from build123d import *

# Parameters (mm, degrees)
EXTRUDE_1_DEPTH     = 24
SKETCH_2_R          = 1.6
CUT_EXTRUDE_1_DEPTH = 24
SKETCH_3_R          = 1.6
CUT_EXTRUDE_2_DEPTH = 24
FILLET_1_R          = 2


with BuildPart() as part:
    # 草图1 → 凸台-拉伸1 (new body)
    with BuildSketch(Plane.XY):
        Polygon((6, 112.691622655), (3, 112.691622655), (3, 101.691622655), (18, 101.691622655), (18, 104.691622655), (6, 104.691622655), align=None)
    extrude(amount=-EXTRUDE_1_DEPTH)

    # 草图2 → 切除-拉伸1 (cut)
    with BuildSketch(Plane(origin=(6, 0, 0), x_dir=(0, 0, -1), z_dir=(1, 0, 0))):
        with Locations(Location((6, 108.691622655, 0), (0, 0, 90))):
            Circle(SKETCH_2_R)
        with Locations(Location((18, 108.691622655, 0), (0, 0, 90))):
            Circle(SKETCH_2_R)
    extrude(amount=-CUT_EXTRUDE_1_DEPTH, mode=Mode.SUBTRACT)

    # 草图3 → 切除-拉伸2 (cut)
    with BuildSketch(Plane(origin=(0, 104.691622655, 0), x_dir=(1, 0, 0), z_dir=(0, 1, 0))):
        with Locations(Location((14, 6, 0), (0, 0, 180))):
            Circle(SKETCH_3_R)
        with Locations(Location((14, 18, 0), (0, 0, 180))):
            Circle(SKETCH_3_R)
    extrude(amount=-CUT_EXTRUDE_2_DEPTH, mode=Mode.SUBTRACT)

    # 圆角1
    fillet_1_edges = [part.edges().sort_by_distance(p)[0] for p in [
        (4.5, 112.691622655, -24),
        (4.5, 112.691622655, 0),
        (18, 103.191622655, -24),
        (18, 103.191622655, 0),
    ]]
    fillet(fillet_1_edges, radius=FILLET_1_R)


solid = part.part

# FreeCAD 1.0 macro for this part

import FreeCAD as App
import Part
import Sketcher
Q = App.Units.Quantity


def edges_at(feature, points):
    """Names of the edges that pass closest to the given points."""
    edges = feature.Shape.Edges
    near = lambda p: min(range(len(edges)), key=lambda i: edges[i].distToShape(Part.Vertex(*p))[0])
    return sorted({f"Edge{near(p) + 1}" for p in points})

doc = App.newDocument("Part")
body = doc.addObject("PartDesign::Body", "Body")

sketch1 = doc.addObject("Sketcher::SketchObject", "Sketch")
body.addObject(sketch1)
sketch1.AttachmentSupport = (doc.XY_Plane, [""])
sketch1.MapMode = "FlatFace"
sketch1.addGeometry(Part.LineSegment(App.Vector(6, 112.7, 0), App.Vector(3, 112.7, 0)), False)
sketch1.addGeometry(Part.LineSegment(App.Vector(3, 112.7, 0), App.Vector(3, 101.7, 0)), False)
sketch1.addGeometry(Part.LineSegment(App.Vector(3, 101.7, 0), App.Vector(18, 101.7, 0)), False)
sketch1.addGeometry(Part.LineSegment(App.Vector(18, 101.7, 0), App.Vector(18, 104.7, 0)), False)
sketch1.addGeometry(Part.LineSegment(App.Vector(18, 104.7, 0), App.Vector(6, 104.7, 0)), False)
sketch1.addGeometry(Part.LineSegment(App.Vector(6, 104.7, 0), App.Vector(6, 112.7, 0)), False)
sketch1.addConstraint(Sketcher.Constraint("Coincident", 0, 2, 1, 1))
sketch1.addConstraint(Sketcher.Constraint("Coincident", 1, 2, 2, 1))
sketch1.addConstraint(Sketcher.Constraint("Coincident", 2, 2, 3, 1))
sketch1.addConstraint(Sketcher.Constraint("Coincident", 3, 2, 4, 1))
sketch1.addConstraint(Sketcher.Constraint("Coincident", 4, 2, 5, 1))
sketch1.addConstraint(Sketcher.Constraint("Coincident", 5, 2, 0, 1))
sketch1.addConstraint(Sketcher.Constraint("Horizontal", 0))
sketch1.addConstraint(Sketcher.Constraint("Vertical", 1))
sketch1.addConstraint(Sketcher.Constraint("Horizontal", 2))
sketch1.addConstraint(Sketcher.Constraint("Vertical", 3))
sketch1.addConstraint(Sketcher.Constraint("Horizontal", 4))
sketch1.addConstraint(Sketcher.Constraint("Vertical", 5))
sketch1.addConstraint(Sketcher.Constraint("Equal", 0, 3))
sketch1.addConstraint(Sketcher.Constraint("DistanceX", 0, 2, 0, 1, Q("3 mm")))
sketch1.addConstraint(Sketcher.Constraint("DistanceX", 2, 1, 2, 2, Q("15 mm")))
sketch1.addConstraint(Sketcher.Constraint("DistanceY", 1, 2, 1, 1, Q("11 mm")))
sketch1.addConstraint(Sketcher.Constraint("DistanceX", -1, 1, 0, 2, Q("3 mm")))
sketch1.addConstraint(Sketcher.Constraint("DistanceY", -1, 1, 0, 2, Q("112.691623 mm")))
pad1 = doc.addObject("PartDesign::Pad", "Pad")
body.addObject(pad1)
pad1.Profile = sketch1
pad1.Length = 24
pad1.Reversed = True

sketch2 = doc.addObject("Sketcher::SketchObject", "Sketch001")
body.addObject(sketch2)
sketch2.AttachmentSupport = (doc.YZ_Plane, [""])
sketch2.MapMode = "FlatFace"
sketch2.AttachmentOffset = App.Placement(App.Vector(0, 0, 6), App.Rotation())
sketch2.addGeometry(Part.Circle(App.Vector(108.7, -6, 0), App.Vector(0, 0, 1), 1.6), False)
sketch2.addGeometry(Part.Circle(App.Vector(108.7, -18, 0), App.Vector(0, 0, 1), 1.6), False)
sketch2.addConstraint(Sketcher.Constraint("Equal", 0, 1))
sketch2.addConstraint(Sketcher.Constraint("Vertical", 0, 3, 1, 3))
sketch2.addConstraint(Sketcher.Constraint("Diameter", 0, Q("3.2 mm")))
sketch2.addConstraint(Sketcher.Constraint("DistanceY", 0, 3, -1, 1, Q("6 mm")))
sketch2.addConstraint(Sketcher.Constraint("DistanceY", 1, 3, -1, 1, Q("18 mm")))
sketch2.addConstraint(Sketcher.Constraint("DistanceX", -1, 1, 0, 3, Q("108.691623 mm")))
pocket1 = doc.addObject("PartDesign::Pocket", "Pocket")
body.addObject(pocket1)
pocket1.Profile = sketch2
pocket1.Length = 24

sketch3 = doc.addObject("Sketcher::SketchObject", "Sketch002")
body.addObject(sketch3)
sketch3.AttachmentSupport = (doc.XZ_Plane, [""])
sketch3.MapMode = "FlatFace"
sketch3.AttachmentOffset = App.Placement(App.Vector(0, 0, -104.691623), App.Rotation())
sketch3.addGeometry(Part.Circle(App.Vector(14, -6, 0), App.Vector(0, 0, 1), 1.6), False)
sketch3.addGeometry(Part.Circle(App.Vector(14, -18, 0), App.Vector(0, 0, 1), 1.6), False)
sketch3.addConstraint(Sketcher.Constraint("Equal", 0, 1))
sketch3.addConstraint(Sketcher.Constraint("Vertical", 0, 3, 1, 3))
sketch3.addConstraint(Sketcher.Constraint("Diameter", 0, Q("3.2 mm")))
sketch3.addConstraint(Sketcher.Constraint("DistanceX", -1, 1, 0, 3, Q("14 mm")))
sketch3.addConstraint(Sketcher.Constraint("DistanceY", 0, 3, -1, 1, Q("6 mm")))
sketch3.addConstraint(Sketcher.Constraint("DistanceY", 1, 3, -1, 1, Q("18 mm")))
pocket2 = doc.addObject("PartDesign::Pocket", "Pocket001")
body.addObject(pocket2)
pocket2.Profile = sketch3
pocket2.Length = 24
pocket2.Reversed = True
doc.recompute()

fillet = doc.addObject("PartDesign::Fillet", "Fillet")
body.addObject(fillet)
fillet.Base = (pocket2, edges_at(pocket2, [
    (4.5, 112.692, -24),
    (4.5, 112.692, 0),
    (18, 103.192, -24),
    (18, 103.192, 0),
]))
fillet.Radius = 2

doc.recompute()
